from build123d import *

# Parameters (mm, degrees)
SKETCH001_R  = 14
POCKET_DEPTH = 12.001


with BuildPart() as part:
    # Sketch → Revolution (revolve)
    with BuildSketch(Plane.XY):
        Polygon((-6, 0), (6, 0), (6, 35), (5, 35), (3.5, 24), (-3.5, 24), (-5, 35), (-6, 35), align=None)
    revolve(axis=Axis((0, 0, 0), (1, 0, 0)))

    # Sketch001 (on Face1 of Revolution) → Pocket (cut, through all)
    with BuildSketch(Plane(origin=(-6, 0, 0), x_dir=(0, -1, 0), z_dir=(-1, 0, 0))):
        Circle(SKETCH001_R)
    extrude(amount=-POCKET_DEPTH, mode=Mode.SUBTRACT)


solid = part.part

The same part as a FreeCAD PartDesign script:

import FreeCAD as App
import Part
import Sketcher
from FreeCAD import Vector
Q = App.Units.Quantity


def add_polygon(sketch, points):
    """Adds a closed chain of lines whose ends are joined by coincident constraints."""
    first, n = sketch.GeometryCount, len(points)
    for a, b in zip(points, points[1:] + points[:1]):
        sketch.addGeometry(Part.LineSegment(App.Vector(*a, 0), App.Vector(*b, 0)), False)
    for i in range(n):
        sketch.addConstraint(Sketcher.Constraint("Coincident", first + i, 2, first + (i + 1) % n, 1))

doc = App.newDocument("Part")
body = doc.addObject("PartDesign::Body", "Body")

# Sketch on XY plane
sketch1 = doc.addObject("Sketcher::SketchObject", "Sketch")
body.addObject(sketch1)
sketch1.AttachmentSupport = (doc.XY_Plane, [""])
sketch1.MapMode = "FlatFace"
add_polygon(sketch1, [(-6, 0), (6, 0), (6, 35), (5, 35), (3.5, 24), (-3.5, 24), (-5, 35), (-6, 35)])  # lines 0-7
sketch1.addConstraint(Sketcher.Constraint("Horizontal", 0))
sketch1.addConstraint(Sketcher.Constraint("Vertical", 1))
sketch1.addConstraint(Sketcher.Constraint("Horizontal", 2))
sketch1.addConstraint(Sketcher.Constraint("Horizontal", 4))
sketch1.addConstraint(Sketcher.Constraint("Horizontal", 6))
sketch1.addConstraint(Sketcher.Constraint("Vertical", 7))
sketch1.addConstraint(Sketcher.Constraint("Symmetric", 0, 2, 7, 2, -1, 1))
sketch1.addConstraint(Sketcher.Constraint("Symmetric", 2, 2, 5, 2, -2))
sketch1.addConstraint(Sketcher.Constraint("Equal", 3, 5))
sketch1.addConstraint(Sketcher.Constraint("DistanceX", 0, 1, 0, 2, Q("12 mm")))
sketch1.addConstraint(Sketcher.Constraint("DistanceX", 2, 2, 2, 1, Q("1 mm")))
sketch1.addConstraint(Sketcher.Constraint("DistanceX", 4, 2, 4, 1, Q("7 mm")))
sketch1.addConstraint(Sketcher.Constraint("DistanceY", 1, 1, 1, 2, Q("35 mm")))
sketch1.addConstraint(Sketcher.Constraint("DistanceY", -1, 1, 3, 2, Q("24 mm")))
revolution = doc.addObject("PartDesign::Revolution", "Revolution")
body.addObject(revolution)
revolution.Profile = sketch1
revolution.ReferenceAxis = (sketch1, ["H_Axis"])
revolution.Angle = 360

# Sketch on YZ plane
sketch2 = doc.addObject("Sketcher::SketchObject", "Sketch001")
body.addObject(sketch2)
sketch2.AttachmentSupport = (doc.YZ_Plane, [""])
sketch2.MapMode = "FlatFace"
sketch2.AttachmentOffset = App.Placement(Vector(0, 0, -6), App.Rotation())
sketch2.addGeometry(Part.Circle(Vector(0, 0, 0), Vector(0, 0, 1), 14), False)
sketch2.addConstraint(Sketcher.Constraint("Coincident", 0, 3, -1, 1))
sketch2.addConstraint(Sketcher.Constraint("Diameter", 0, Q("28 mm")))
pocket1 = doc.addObject("PartDesign::Pocket", "Pocket")
body.addObject(pocket1)
pocket1.Profile = sketch2
pocket1.Type = "ThroughAll"
pocket1.Reversed = True

doc.recompute()
